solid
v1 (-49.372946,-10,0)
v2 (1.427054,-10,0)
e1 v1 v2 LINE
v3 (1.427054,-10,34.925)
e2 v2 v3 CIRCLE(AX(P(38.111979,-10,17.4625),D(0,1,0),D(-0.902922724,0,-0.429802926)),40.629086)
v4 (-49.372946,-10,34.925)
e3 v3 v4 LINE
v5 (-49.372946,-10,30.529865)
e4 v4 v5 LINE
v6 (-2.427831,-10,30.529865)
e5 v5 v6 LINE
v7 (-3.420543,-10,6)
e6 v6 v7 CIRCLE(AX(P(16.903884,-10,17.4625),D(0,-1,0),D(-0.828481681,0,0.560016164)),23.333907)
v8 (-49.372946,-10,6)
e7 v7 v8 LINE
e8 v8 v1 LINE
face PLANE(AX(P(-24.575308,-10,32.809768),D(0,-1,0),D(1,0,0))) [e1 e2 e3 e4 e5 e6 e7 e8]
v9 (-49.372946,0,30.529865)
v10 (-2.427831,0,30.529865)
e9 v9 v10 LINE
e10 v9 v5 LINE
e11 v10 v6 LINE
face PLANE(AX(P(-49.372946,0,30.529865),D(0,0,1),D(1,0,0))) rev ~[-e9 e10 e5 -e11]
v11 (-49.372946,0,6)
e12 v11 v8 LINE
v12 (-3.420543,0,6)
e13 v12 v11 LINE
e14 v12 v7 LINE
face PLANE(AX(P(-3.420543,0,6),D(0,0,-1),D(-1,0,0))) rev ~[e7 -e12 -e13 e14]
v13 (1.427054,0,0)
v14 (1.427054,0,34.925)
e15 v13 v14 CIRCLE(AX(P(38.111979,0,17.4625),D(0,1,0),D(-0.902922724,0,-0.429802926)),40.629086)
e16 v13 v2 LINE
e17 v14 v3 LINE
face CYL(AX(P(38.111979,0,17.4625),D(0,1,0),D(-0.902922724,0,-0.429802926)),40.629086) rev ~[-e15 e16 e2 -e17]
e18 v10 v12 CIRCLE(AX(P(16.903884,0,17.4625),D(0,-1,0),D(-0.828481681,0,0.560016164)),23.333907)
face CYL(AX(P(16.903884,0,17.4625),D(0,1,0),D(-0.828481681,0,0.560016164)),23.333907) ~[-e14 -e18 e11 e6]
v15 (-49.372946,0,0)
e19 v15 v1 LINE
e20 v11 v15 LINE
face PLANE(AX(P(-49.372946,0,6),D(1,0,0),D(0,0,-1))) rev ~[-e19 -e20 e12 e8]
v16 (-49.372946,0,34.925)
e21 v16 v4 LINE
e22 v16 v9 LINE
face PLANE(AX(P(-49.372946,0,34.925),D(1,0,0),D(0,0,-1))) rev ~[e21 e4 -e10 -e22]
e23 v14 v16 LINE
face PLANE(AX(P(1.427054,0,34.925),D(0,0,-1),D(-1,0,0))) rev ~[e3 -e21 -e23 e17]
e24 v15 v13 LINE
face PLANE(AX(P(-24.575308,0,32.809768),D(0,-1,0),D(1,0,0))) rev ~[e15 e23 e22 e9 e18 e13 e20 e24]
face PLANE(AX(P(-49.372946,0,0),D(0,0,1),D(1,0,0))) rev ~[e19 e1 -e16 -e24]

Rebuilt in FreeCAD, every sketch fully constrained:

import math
import FreeCAD as App
import Part
import Sketcher
from FreeCAD import Vector

doc = App.newDocument("Part")
body = doc.addObject("PartDesign::Body", "Body")

sketch1 = body.newObject("Sketcher::SketchObject", "Sketch")
sketch1.AttachmentSupport = (doc.getObject("XZ_Plane"), [""])
sketch1.MapMode = "FlatFace"
sketch1.addGeometry([
    Part.LineSegment(Vector(1.427054, 34.925, 0), Vector(-49.372946, 34.925, 0)),
    Part.LineSegment(Vector(-49.372946, 34.925, 0), Vector(-49.372946, 30.529865, 0)),
    Part.LineSegment(Vector(-49.372946, 30.529865, 0), Vector(-2.427831, 30.529865, 0)),
    Part.ArcOfCircle(Part.Circle(Vector(16.903884, 17.4625, 0), Vector(0, 0, 1), 23.333907), math.radians(145.943084), math.radians(209.421979)),
    Part.LineSegment(Vector(-3.420543, 6, 0), Vector(-49.372946, 6, 0)),
    Part.LineSegment(Vector(-49.372946, 6, 0), Vector(-49.372946, 0, 0)),
    Part.LineSegment(Vector(-49.372946, 0, 0), Vector(1.427054, 0, 0)),
    Part.ArcOfCircle(Part.Circle(Vector(38.111979, 17.4625, 0), Vector(0, 0, 1), 40.629086), math.radians(154.544946), math.radians(205.455054)),
], False)
sketch1.addConstraint([
    Sketcher.Constraint("Coincident", 0, 2, 1, 1),
    Sketcher.Constraint("Coincident", 1, 2, 2, 1),
    Sketcher.Constraint("Coincident", 2, 2, 3, 1),
    Sketcher.Constraint("Coincident", 3, 2, 4, 1),
    Sketcher.Constraint("Coincident", 4, 2, 5, 1),
    Sketcher.Constraint("Coincident", 5, 2, 6, 1),
    Sketcher.Constraint("Coincident", 6, 2, 7, 2),
    Sketcher.Constraint("Coincident", 7, 1, 0, 1),
    Sketcher.Constraint("Horizontal", 0),
    Sketcher.Constraint("Vertical", 1),
    Sketcher.Constraint("Horizontal", 2),
    Sketcher.Constraint("Horizontal", 4),
    Sketcher.Constraint("Vertical", 5),
    Sketcher.Constraint("Horizontal", 6),
    Sketcher.Constraint("PointOnObject", 5, 2, -1),
    Sketcher.Constraint("Horizontal", 3, 3, 7, 3),
    Sketcher.Constraint("Vertical", 1, 2, 4, 2),
    Sketcher.Constraint("Vertical", 6, 2, 7, 1),
    Sketcher.Constraint("DistanceY", 5, 2, 5, 1, 6.0),
    Sketcher.Constraint("DistanceX", 0, 2, 0, 1, 50.8),
    Sketcher.Constraint("DistanceY", -1, 1, 0, 2, 34.925),
    Sketcher.Constraint("Radius", 3, 23.333907),
    Sketcher.Constraint("Radius", 7, 40.629086),
    Sketcher.Constraint("DistanceX", 2, 1, 2, 2, 46.945115),
    Sketcher.Constraint("DistanceX", 4, 2, 4, 1, 45.952403),
    Sketcher.Constraint("DistanceX", -1, 1, 7, 3, 38.111979),
])
pad1 = body.newObject("PartDesign::Pad", "Pad")
pad1.Profile = sketch1
pad1.Length = 10

doc.recompute()
